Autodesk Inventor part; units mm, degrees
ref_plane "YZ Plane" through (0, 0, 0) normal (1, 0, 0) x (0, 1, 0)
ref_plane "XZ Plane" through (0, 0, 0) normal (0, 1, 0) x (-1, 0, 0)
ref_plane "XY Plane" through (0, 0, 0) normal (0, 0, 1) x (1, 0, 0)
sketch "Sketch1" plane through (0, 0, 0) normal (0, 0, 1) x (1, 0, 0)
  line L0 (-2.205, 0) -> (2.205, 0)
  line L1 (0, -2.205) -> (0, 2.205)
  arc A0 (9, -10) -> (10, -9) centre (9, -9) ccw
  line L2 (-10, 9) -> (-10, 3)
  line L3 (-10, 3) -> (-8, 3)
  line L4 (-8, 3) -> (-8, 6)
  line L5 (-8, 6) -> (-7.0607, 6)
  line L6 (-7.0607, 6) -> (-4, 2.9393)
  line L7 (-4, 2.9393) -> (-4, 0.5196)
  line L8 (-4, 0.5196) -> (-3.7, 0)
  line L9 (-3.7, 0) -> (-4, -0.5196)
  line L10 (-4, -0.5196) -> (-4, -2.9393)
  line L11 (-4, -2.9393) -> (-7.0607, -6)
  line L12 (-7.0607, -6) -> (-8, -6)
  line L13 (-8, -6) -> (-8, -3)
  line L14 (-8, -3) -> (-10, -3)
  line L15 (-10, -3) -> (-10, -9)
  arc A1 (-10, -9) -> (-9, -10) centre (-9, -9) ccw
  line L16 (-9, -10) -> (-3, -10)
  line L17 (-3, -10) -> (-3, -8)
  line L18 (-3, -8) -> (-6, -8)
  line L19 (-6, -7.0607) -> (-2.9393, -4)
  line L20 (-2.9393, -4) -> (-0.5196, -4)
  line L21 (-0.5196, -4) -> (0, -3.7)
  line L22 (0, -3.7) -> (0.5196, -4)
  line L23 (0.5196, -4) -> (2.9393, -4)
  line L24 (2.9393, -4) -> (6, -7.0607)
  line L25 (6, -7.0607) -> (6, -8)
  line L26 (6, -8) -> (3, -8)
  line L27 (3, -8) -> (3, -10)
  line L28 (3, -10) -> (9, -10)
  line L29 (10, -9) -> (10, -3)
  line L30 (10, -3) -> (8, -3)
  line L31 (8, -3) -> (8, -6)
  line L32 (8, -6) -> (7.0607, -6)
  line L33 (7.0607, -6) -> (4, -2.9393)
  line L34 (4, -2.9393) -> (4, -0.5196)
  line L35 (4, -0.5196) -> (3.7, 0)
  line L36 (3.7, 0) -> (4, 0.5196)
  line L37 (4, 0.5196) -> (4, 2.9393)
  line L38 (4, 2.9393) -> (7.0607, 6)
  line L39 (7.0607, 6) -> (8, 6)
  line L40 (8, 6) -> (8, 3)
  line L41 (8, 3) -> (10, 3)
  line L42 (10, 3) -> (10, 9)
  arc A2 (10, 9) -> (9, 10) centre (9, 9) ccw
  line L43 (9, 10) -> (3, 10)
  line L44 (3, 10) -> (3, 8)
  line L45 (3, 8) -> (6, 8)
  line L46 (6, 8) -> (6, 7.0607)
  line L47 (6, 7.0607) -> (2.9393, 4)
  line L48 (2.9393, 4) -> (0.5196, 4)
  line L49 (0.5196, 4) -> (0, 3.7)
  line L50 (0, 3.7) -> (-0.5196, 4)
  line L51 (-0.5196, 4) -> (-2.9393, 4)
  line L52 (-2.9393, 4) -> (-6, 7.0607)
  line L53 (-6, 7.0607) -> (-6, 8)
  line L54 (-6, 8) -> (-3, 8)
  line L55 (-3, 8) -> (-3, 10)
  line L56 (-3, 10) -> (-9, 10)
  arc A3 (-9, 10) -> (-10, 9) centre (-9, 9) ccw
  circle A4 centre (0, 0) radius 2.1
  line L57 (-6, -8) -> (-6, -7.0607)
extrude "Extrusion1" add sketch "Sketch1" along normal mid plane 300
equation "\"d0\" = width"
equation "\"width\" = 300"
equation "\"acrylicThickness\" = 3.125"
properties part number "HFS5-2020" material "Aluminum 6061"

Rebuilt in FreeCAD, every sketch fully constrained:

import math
import FreeCAD as App
import Part
import Sketcher

V = App.Vector
Q = App.Units.Quantity

doc = App.newDocument("Part")
body = doc.addObject("PartDesign::Body", "Body")

# Sketch on XY plane
sketch1 = doc.addObject("Sketcher::SketchObject", "Sketch")
body.addObject(sketch1)
sketch1.AttachmentSupport = (doc.XY_Plane, [""])
sketch1.MapMode = "FlatFace"
sketch1.addGeometry(Part.LineSegment(V(3, -10, 0), V(9, -10, 0)), False)
sketch1.addGeometry(Part.ArcOfCircle(Part.Circle(V(9, -9, 0), V(0, 0, 1), 1), math.radians(-90), math.radians(0)), False)
sketch1.addGeometry(Part.LineSegment(V(10, -9, 0), V(10, -3, 0)), False)
sketch1.addGeometry(Part.LineSegment(V(10, -3, 0), V(8, -3, 0)), False)
sketch1.addGeometry(Part.LineSegment(V(8, -3, 0), V(8, -6, 0)), False)
sketch1.addGeometry(Part.LineSegment(V(8, -6, 0), V(7.1, -6, 0)), False)
sketch1.addGeometry(Part.LineSegment(V(7.1, -6, 0), V(4, -2.9, 0)), False)
sketch1.addGeometry(Part.LineSegment(V(4, -2.9, 0), V(4, -0.5, 0)), False)
sketch1.addGeometry(Part.LineSegment(V(4, -0.5, 0), V(3.7, 0, 0)), False)
sketch1.addGeometry(Part.LineSegment(V(3.7, 0, 0), V(4, 0.5, 0)), False)
sketch1.addGeometry(Part.LineSegment(V(4, 0.5, 0), V(4, 2.9, 0)), False)
sketch1.addGeometry(Part.LineSegment(V(4, 2.9, 0), V(7.1, 6, 0)), False)
sketch1.addGeometry(Part.LineSegment(V(7.1, 6, 0), V(8, 6, 0)), False)
sketch1.addGeometry(Part.LineSegment(V(8, 6, 0), V(8, 3, 0)), False)
sketch1.addGeometry(Part.LineSegment(V(8, 3, 0), V(10, 3, 0)), False)
sketch1.addGeometry(Part.LineSegment(V(10, 3, 0), V(10, 9, 0)), False)
sketch1.addGeometry(Part.ArcOfCircle(Part.Circle(V(9, 9, 0), V(0, 0, 1), 1), math.radians(0), math.radians(90)), False)
sketch1.addGeometry(Part.LineSegment(V(9, 10, 0), V(3, 10, 0)), False)
sketch1.addGeometry(Part.LineSegment(V(3, 10, 0), V(3, 8, 0)), False)
sketch1.addGeometry(Part.LineSegment(V(3, 8, 0), V(6, 8, 0)), False)
sketch1.addGeometry(Part.LineSegment(V(6, 8, 0), V(6, 7.1, 0)), False)
sketch1.addGeometry(Part.LineSegment(V(6, 7.1, 0), V(2.9, 4, 0)), False)
sketch1.addGeometry(Part.LineSegment(V(2.9, 4, 0), V(0.5, 4, 0)), False)
sketch1.addGeometry(Part.LineSegment(V(0.5, 4, 0), V(0, 3.7, 0)), False)
sketch1.addGeometry(Part.LineSegment(V(0, 3.7, 0), V(-0.5, 4, 0)), False)
sketch1.addGeometry(Part.LineSegment(V(-0.5, 4, 0), V(-2.9, 4, 0)), False)
sketch1.addGeometry(Part.LineSegment(V(-2.9, 4, 0), V(-6, 7.1, 0)), False)
sketch1.addGeometry(Part.LineSegment(V(-6, 7.1, 0), V(-6, 8, 0)), False)
sketch1.addGeometry(Part.LineSegment(V(-6, 8, 0), V(-3, 8, 0)), False)
sketch1.addGeometry(Part.LineSegment(V(-3, 8, 0), V(-3, 10, 0)), False)
sketch1.addGeometry(Part.LineSegment(V(-3, 10, 0), V(-9, 10, 0)), False)
sketch1.addGeometry(Part.ArcOfCircle(Part.Circle(V(-9, 9, 0), V(0, 0, 1), 1), math.radians(90), math.radians(180)), False)
sketch1.addGeometry(Part.LineSegment(V(-10, 9, 0), V(-10, 3, 0)), False)
sketch1.addGeometry(Part.LineSegment(V(-10, 3, 0), V(-8, 3, 0)), False)
sketch1.addGeometry(Part.LineSegment(V(-8, 3, 0), V(-8, 6, 0)), False)
sketch1.addGeometry(Part.LineSegment(V(-8, 6, 0), V(-7.1, 6, 0)), False)
sketch1.addGeometry(Part.LineSegment(V(-7.1, 6, 0), V(-4, 2.9, 0)), False)
sketch1.addGeometry(Part.LineSegment(V(-4, 2.9, 0), V(-4, 0.5, 0)), False)
sketch1.addGeometry(Part.LineSegment(V(-4, 0.5, 0), V(-3.7, 0, 0)), False)
sketch1.addGeometry(Part.LineSegment(V(-3.7, 0, 0), V(-4, -0.5, 0)), False)
sketch1.addGeometry(Part.LineSegment(V(-4, -0.5, 0), V(-4, -2.9, 0)), False)
sketch1.addGeometry(Part.LineSegment(V(-4, -2.9, 0), V(-7.1, -6, 0)), False)
sketch1.addGeometry(Part.LineSegment(V(-7.1, -6, 0), V(-8, -6, 0)), False)
sketch1.addGeometry(Part.LineSegment(V(-8, -6, 0), V(-8, -3, 0)), False)
sketch1.addGeometry(Part.LineSegment(V(-8, -3, 0), V(-10, -3, 0)), False)
sketch1.addGeometry(Part.LineSegment(V(-10, -3, 0), V(-10, -9, 0)), False)
sketch1.addGeometry(Part.ArcOfCircle(Part.Circle(V(-9, -9, 0), V(0, 0, 1), 1), math.radians(180), math.radians(270)), False)
sketch1.addGeometry(Part.LineSegment(V(-9, -10, 0), V(-3, -10, 0)), False)
sketch1.addGeometry(Part.LineSegment(V(-3, -10, 0), V(-3, -8, 0)), False)
sketch1.addGeometry(Part.LineSegment(V(-3, -8, 0), V(-6, -8, 0)), False)
sketch1.addGeometry(Part.LineSegment(V(-6, -8, 0), V(-6, -7.1, 0)), False)
sketch1.addGeometry(Part.LineSegment(V(-6, -7.1, 0), V(-2.9, -4, 0)), False)
sketch1.addGeometry(Part.LineSegment(V(-2.9, -4, 0), V(-0.5, -4, 0)), False)
sketch1.addGeometry(Part.LineSegment(V(-0.5, -4, 0), V(0, -3.7, 0)), False)
sketch1.addGeometry(Part.LineSegment(V(0, -3.7, 0), V(0.5, -4, 0)), False)
sketch1.addGeometry(Part.LineSegment(V(0.5, -4, 0), V(2.9, -4, 0)), False)
sketch1.addGeometry(Part.LineSegment(V(2.9, -4, 0), V(6, -7.1, 0)), False)
sketch1.addGeometry(Part.LineSegment(V(6, -7.1, 0), V(6, -8, 0)), False)
sketch1.addGeometry(Part.LineSegment(V(6, -8, 0), V(3, -8, 0)), False)
sketch1.addGeometry(Part.LineSegment(V(3, -8, 0), V(3, -10, 0)), False)
sketch1.addGeometry(Part.Circle(V(0, 0, 0), V(0, 0, 1), 2.1), False)
sketch1.addConstraint(Sketcher.Constraint("Tangent", 0, 2, 1, 1))
sketch1.addConstraint(Sketcher.Constraint("Tangent", 1, 2, 2, 1))
sketch1.addConstraint(Sketcher.Constraint("Coincident", 2, 2, 3, 1))
sketch1.addConstraint(Sketcher.Constraint("Coincident", 3, 2, 4, 1))
sketch1.addConstraint(Sketcher.Constraint("Coincident", 4, 2, 5, 1))
sketch1.addConstraint(Sketcher.Constraint("Coincident", 5, 2, 6, 1))
sketch1.addConstraint(Sketcher.Constraint("Coincident", 6, 2, 7, 1))
sketch1.addConstraint(Sketcher.Constraint("Coincident", 7, 2, 8, 1))
sketch1.addConstraint(Sketcher.Constraint("Coincident", 8, 2, 9, 1))
sketch1.addConstraint(Sketcher.Constraint("Coincident", 9, 2, 10, 1))
sketch1.addConstraint(Sketcher.Constraint("Coincident", 10, 2, 11, 1))
sketch1.addConstraint(Sketcher.Constraint("Coincident", 11, 2, 12, 1))
sketch1.addConstraint(Sketcher.Constraint("Coincident", 12, 2, 13, 1))
sketch1.addConstraint(Sketcher.Constraint("Coincident", 13, 2, 14, 1))
sketch1.addConstraint(Sketcher.Constraint("Coincident", 14, 2, 15, 1))
sketch1.addConstraint(Sketcher.Constraint("Tangent", 15, 2, 16, 1))
sketch1.addConstraint(Sketcher.Constraint("Tangent", 16, 2, 17, 1))
sketch1.addConstraint(Sketcher.Constraint("Coincident", 17, 2, 18, 1))
sketch1.addConstraint(Sketcher.Constraint("Coincident", 18, 2, 19, 1))
sketch1.addConstraint(Sketcher.Constraint("Coincident", 19, 2, 20, 1))
sketch1.addConstraint(Sketcher.Constraint("Coincident", 20, 2, 21, 1))
sketch1.addConstraint(Sketcher.Constraint("Coincident", 21, 2, 22, 1))
sketch1.addConstraint(Sketcher.Constraint("Coincident", 22, 2, 23, 1))
sketch1.addConstraint(Sketcher.Constraint("Coincident", 23, 2, 24, 1))
sketch1.addConstraint(Sketcher.Constraint("Coincident", 24, 2, 25, 1))
sketch1.addConstraint(Sketcher.Constraint("Coincident", 25, 2, 26, 1))
sketch1.addConstraint(Sketcher.Constraint("Coincident", 26, 2, 27, 1))
sketch1.addConstraint(Sketcher.Constraint("Coincident", 27, 2, 28, 1))
sketch1.addConstraint(Sketcher.Constraint("Coincident", 28, 2, 29, 1))
sketch1.addConstraint(Sketcher.Constraint("Coincident", 29, 2, 30, 1))
sketch1.addConstraint(Sketcher.Constraint("Tangent", 30, 2, 31, 1))
sketch1.addConstraint(Sketcher.Constraint("Tangent", 31, 2, 32, 1))
sketch1.addConstraint(Sketcher.Constraint("Coincident", 32, 2, 33, 1))
sketch1.addConstraint(Sketcher.Constraint("Coincident", 33, 2, 34, 1))
sketch1.addConstraint(Sketcher.Constraint("Coincident", 34, 2, 35, 1))
sketch1.addConstraint(Sketcher.Constraint("Coincident", 35, 2, 36, 1))
sketch1.addConstraint(Sketcher.Constraint("Coincident", 36, 2, 37, 1))
sketch1.addConstraint(Sketcher.Constraint("Coincident", 37, 2, 38, 1))
sketch1.addConstraint(Sketcher.Constraint("Coincident", 38, 2, 39, 1))
sketch1.addConstraint(Sketcher.Constraint("Coincident", 39, 2, 40, 1))
sketch1.addConstraint(Sketcher.Constraint("Coincident", 40, 2, 41, 1))
sketch1.addConstraint(Sketcher.Constraint("Coincident", 41, 2, 42, 1))
sketch1.addConstraint(Sketcher.Constraint("Coincident", 42, 2, 43, 1))
sketch1.addConstraint(Sketcher.Constraint("Coincident", 43, 2, 44, 1))
sketch1.addConstraint(Sketcher.Constraint("Coincident", 44, 2, 45, 1))
sketch1.addConstraint(Sketcher.Constraint("Tangent", 45, 2, 46, 1))
sketch1.addConstraint(Sketcher.Constraint("Tangent", 46, 2, 47, 1))
sketch1.addConstraint(Sketcher.Constraint("Coincident", 47, 2, 48, 1))
sketch1.addConstraint(Sketcher.Constraint("Coincident", 48, 2, 49, 1))
sketch1.addConstraint(Sketcher.Constraint("Coincident", 49, 2, 50, 1))
sketch1.addConstraint(Sketcher.Constraint("Coincident", 50, 2, 51, 1))
sketch1.addConstraint(Sketcher.Constraint("Coincident", 51, 2, 52, 1))
sketch1.addConstraint(Sketcher.Constraint("Coincident", 52, 2, 53, 1))
sketch1.addConstraint(Sketcher.Constraint("Coincident", 53, 2, 54, 1))
sketch1.addConstraint(Sketcher.Constraint("Coincident", 54, 2, 55, 1))
sketch1.addConstraint(Sketcher.Constraint("Coincident", 55, 2, 56, 1))
sketch1.addConstraint(Sketcher.Constraint("Coincident", 56, 2, 57, 1))
sketch1.addConstraint(Sketcher.Constraint("Coincident", 57, 2, 58, 1))
sketch1.addConstraint(Sketcher.Constraint("Coincident", 58, 2, 59, 1))
sketch1.addConstraint(Sketcher.Constraint("Coincident", 59, 2, 0, 1))
sketch1.addConstraint(Sketcher.Constraint("Horizontal", 0))
sketch1.addConstraint(Sketcher.Constraint("Vertical", 2))
sketch1.addConstraint(Sketcher.Constraint("Horizontal", 3))
sketch1.addConstraint(Sketcher.Constraint("Vertical", 4))
sketch1.addConstraint(Sketcher.Constraint("Horizontal", 5))
sketch1.addConstraint(Sketcher.Constraint("Vertical", 7))
sketch1.addConstraint(Sketcher.Constraint("Vertical", 10))
sketch1.addConstraint(Sketcher.Constraint("Horizontal", 12))
sketch1.addConstraint(Sketcher.Constraint("Vertical", 13))
sketch1.addConstraint(Sketcher.Constraint("Horizontal", 14))
sketch1.addConstraint(Sketcher.Constraint("Vertical", 15))
sketch1.addConstraint(Sketcher.Constraint("Horizontal", 17))
sketch1.addConstraint(Sketcher.Constraint("Vertical", 18))
sketch1.addConstraint(Sketcher.Constraint("Horizontal", 19))
sketch1.addConstraint(Sketcher.Constraint("Vertical", 20))
sketch1.addConstraint(Sketcher.Constraint("Horizontal", 22))
sketch1.addConstraint(Sketcher.Constraint("Horizontal", 25))
sketch1.addConstraint(Sketcher.Constraint("Vertical", 27))
sketch1.addConstraint(Sketcher.Constraint("Horizontal", 28))
sketch1.addConstraint(Sketcher.Constraint("Vertical", 29))
sketch1.addConstraint(Sketcher.Constraint("Horizontal", 30))
sketch1.addConstraint(Sketcher.Constraint("Vertical", 32))
sketch1.addConstraint(Sketcher.Constraint("Horizontal", 33))
sketch1.addConstraint(Sketcher.Constraint("Vertical", 34))
sketch1.addConstraint(Sketcher.Constraint("Horizontal", 35))
sketch1.addConstraint(Sketcher.Constraint("Vertical", 37))
sketch1.addConstraint(Sketcher.Constraint("Vertical", 40))
sketch1.addConstraint(Sketcher.Constraint("Horizontal", 42))
sketch1.addConstraint(Sketcher.Constraint("Vertical", 43))
sketch1.addConstraint(Sketcher.Constraint("Horizontal", 44))
sketch1.addConstraint(Sketcher.Constraint("Vertical", 45))
sketch1.addConstraint(Sketcher.Constraint("Horizontal", 47))
sketch1.addConstraint(Sketcher.Constraint("Vertical", 48))
sketch1.addConstraint(Sketcher.Constraint("Horizontal", 49))
sketch1.addConstraint(Sketcher.Constraint("Vertical", 50))
sketch1.addConstraint(Sketcher.Constraint("Horizontal", 52))
sketch1.addConstraint(Sketcher.Constraint("Horizontal", 55))
sketch1.addConstraint(Sketcher.Constraint("Vertical", 57))
sketch1.addConstraint(Sketcher.Constraint("Horizontal", 58))
sketch1.addConstraint(Sketcher.Constraint("Vertical", 59))
sketch1.addConstraint(Sketcher.Constraint("Coincident", 60, 3, -1, 1))
sketch1.addConstraint(Sketcher.Constraint("Equal", 1, 16))
sketch1.addConstraint(Sketcher.Constraint("Equal", 16, 31))
sketch1.addConstraint(Sketcher.Constraint("Equal", 31, 46))
sketch1.addConstraint(Sketcher.Constraint("Symmetric", 1, 3, 31, 3, -1, 1))
sketch1.addConstraint(Sketcher.Constraint("Symmetric", 16, 3, 46, 3, -1, 1))
sketch1.addConstraint(Sketcher.Constraint("Symmetric", 3, 2, 33, 2, -1, 1))
sketch1.addConstraint(Sketcher.Constraint("Symmetric", 5, 2, 35, 2, -1, 1))
sketch1.addConstraint(Sketcher.Constraint("Symmetric", 6, 2, 36, 2, -1, 1))
sketch1.addConstraint(Sketcher.Constraint("Symmetric", 8, 2, 38, 2, -1, 1))
sketch1.addConstraint(Sketcher.Constraint("Symmetric", 9, 2, 39, 2, -1, 1))
sketch1.addConstraint(Sketcher.Constraint("Symmetric", 11, 2, 41, 2, -1, 1))
sketch1.addConstraint(Sketcher.Constraint("Symmetric", 13, 2, 43, 2, -1, 1))
sketch1.addConstraint(Sketcher.Constraint("Symmetric", 18, 2, 48, 2, -1, 1))
sketch1.addConstraint(Sketcher.Constraint("Symmetric", 20, 2, 50, 2, -1, 1))
sketch1.addConstraint(Sketcher.Constraint("Symmetric", 21, 2, 51, 2, -1, 1))
sketch1.addConstraint(Sketcher.Constraint("Symmetric", 23, 2, 53, 2, -1, 1))
sketch1.addConstraint(Sketcher.Constraint("Symmetric", 24, 2, 54, 2, -1, 1))
sketch1.addConstraint(Sketcher.Constraint("Symmetric", 26, 2, 56, 2, -1, 1))
sketch1.addConstraint(Sketcher.Constraint("Symmetric", 28, 2, 58, 2, -1, 1))
sketch1.addConstraint(Sketcher.Constraint("Symmetric", 16, 3, 31, 3, -2))
sketch1.addConstraint(Sketcher.Constraint("Symmetric", 22, 2, 24, 2, -2))
sketch1.addConstraint(Sketcher.Constraint("Symmetric", 20, 2, 26, 2, -2))
sketch1.addConstraint(Sketcher.Constraint("Symmetric", 18, 2, 28, 2, -2))
sketch1.addConstraint(Sketcher.Constraint("Symmetric", 13, 2, 33, 2, -2))
sketch1.addConstraint(Sketcher.Constraint("Symmetric", 11, 2, 35, 2, -2))
sketch1.addConstraint(Sketcher.Constraint("Symmetric", 10, 2, 36, 2, -2))
sketch1.addConstraint(Sketcher.Constraint("PointOnObject", 8, 2, -1))
sketch1.addConstraint(Sketcher.Constraint("PointOnObject", 23, 2, -2))
sketch1.addConstraint(Sketcher.Constraint("Perpendicular", 6, 11))
sketch1.addConstraint(Sketcher.Constraint("Parallel", 11, 21))
sketch1.addConstraint(Sketcher.Constraint("Perpendicular", 8, 23))
sketch1.addConstraint(Sketcher.Constraint("Perpendicular", 9, 24))
sketch1.addConstraint(Sketcher.Constraint("Perpendicular", 21, 26))
sketch1.addConstraint(Sketcher.Constraint("Perpendicular", 23, 38))
sketch1.addConstraint(Sketcher.Constraint("Perpendicular", 36, 41))
sketch1.addConstraint(Sketcher.Constraint("Perpendicular", 38, 53))
sketch1.addConstraint(Sketcher.Constraint("Perpendicular", 51, 56))
sketch1.addConstraint(Sketcher.Constraint("Equal", 47, 2))
sketch1.addConstraint(Sketcher.Constraint("Equal", 58, 4))
sketch1.addConstraint(Sketcher.Constraint("Equal", 55, 7))
sketch1.addConstraint(Sketcher.Constraint("Equal", 44, 18))
sketch1.addConstraint(Sketcher.Constraint("Equal", 42, 20))
sketch1.addConstraint(Sketcher.Constraint("Equal", 11, 21))
sketch1.addConstraint(Sketcher.Constraint("Equal", 9, 23))
sketch1.addConstraint(Sketcher.Constraint("Radius", 1, Q("1 mm")))
sketch1.addConstraint(Sketcher.Constraint("Diameter", 60, Q("4.2 mm")))
sketch1.addConstraint(Sketcher.Constraint("DistanceX", 0, 1, 0, 2, Q("6 mm")))
sketch1.addConstraint(Sketcher.Constraint("DistanceX", 3, 2, 3, 1, Q("2 mm")))
sketch1.addConstraint(Sketcher.Constraint("DistanceX", 19, 1, 19, 2, Q("3 mm")))
sketch1.addConstraint(Sketcher.Constraint("Angle", 8, Q("120.0007 deg")))
sketch1.addConstraint(Sketcher.Constraint("DistanceX", -1, 1, 1, 3, Q("9 mm")))
sketch1.addConstraint(Sketcher.Constraint("DistanceX", -1, 1, 6, 2, Q("4 mm")))
sketch1.addConstraint(Sketcher.Constraint("Distance", 8, Q("0.6 mm")))
sketch1.addConstraint(Sketcher.Constraint("DistanceX", 5, 2, 5, 1, Q("0.9393 mm")))
pad1 = doc.addObject("PartDesign::Pad", "Pad")
body.addObject(pad1)
pad1.Profile = sketch1
pad1.Length = 300
pad1.Midplane = True

doc.recompute()
